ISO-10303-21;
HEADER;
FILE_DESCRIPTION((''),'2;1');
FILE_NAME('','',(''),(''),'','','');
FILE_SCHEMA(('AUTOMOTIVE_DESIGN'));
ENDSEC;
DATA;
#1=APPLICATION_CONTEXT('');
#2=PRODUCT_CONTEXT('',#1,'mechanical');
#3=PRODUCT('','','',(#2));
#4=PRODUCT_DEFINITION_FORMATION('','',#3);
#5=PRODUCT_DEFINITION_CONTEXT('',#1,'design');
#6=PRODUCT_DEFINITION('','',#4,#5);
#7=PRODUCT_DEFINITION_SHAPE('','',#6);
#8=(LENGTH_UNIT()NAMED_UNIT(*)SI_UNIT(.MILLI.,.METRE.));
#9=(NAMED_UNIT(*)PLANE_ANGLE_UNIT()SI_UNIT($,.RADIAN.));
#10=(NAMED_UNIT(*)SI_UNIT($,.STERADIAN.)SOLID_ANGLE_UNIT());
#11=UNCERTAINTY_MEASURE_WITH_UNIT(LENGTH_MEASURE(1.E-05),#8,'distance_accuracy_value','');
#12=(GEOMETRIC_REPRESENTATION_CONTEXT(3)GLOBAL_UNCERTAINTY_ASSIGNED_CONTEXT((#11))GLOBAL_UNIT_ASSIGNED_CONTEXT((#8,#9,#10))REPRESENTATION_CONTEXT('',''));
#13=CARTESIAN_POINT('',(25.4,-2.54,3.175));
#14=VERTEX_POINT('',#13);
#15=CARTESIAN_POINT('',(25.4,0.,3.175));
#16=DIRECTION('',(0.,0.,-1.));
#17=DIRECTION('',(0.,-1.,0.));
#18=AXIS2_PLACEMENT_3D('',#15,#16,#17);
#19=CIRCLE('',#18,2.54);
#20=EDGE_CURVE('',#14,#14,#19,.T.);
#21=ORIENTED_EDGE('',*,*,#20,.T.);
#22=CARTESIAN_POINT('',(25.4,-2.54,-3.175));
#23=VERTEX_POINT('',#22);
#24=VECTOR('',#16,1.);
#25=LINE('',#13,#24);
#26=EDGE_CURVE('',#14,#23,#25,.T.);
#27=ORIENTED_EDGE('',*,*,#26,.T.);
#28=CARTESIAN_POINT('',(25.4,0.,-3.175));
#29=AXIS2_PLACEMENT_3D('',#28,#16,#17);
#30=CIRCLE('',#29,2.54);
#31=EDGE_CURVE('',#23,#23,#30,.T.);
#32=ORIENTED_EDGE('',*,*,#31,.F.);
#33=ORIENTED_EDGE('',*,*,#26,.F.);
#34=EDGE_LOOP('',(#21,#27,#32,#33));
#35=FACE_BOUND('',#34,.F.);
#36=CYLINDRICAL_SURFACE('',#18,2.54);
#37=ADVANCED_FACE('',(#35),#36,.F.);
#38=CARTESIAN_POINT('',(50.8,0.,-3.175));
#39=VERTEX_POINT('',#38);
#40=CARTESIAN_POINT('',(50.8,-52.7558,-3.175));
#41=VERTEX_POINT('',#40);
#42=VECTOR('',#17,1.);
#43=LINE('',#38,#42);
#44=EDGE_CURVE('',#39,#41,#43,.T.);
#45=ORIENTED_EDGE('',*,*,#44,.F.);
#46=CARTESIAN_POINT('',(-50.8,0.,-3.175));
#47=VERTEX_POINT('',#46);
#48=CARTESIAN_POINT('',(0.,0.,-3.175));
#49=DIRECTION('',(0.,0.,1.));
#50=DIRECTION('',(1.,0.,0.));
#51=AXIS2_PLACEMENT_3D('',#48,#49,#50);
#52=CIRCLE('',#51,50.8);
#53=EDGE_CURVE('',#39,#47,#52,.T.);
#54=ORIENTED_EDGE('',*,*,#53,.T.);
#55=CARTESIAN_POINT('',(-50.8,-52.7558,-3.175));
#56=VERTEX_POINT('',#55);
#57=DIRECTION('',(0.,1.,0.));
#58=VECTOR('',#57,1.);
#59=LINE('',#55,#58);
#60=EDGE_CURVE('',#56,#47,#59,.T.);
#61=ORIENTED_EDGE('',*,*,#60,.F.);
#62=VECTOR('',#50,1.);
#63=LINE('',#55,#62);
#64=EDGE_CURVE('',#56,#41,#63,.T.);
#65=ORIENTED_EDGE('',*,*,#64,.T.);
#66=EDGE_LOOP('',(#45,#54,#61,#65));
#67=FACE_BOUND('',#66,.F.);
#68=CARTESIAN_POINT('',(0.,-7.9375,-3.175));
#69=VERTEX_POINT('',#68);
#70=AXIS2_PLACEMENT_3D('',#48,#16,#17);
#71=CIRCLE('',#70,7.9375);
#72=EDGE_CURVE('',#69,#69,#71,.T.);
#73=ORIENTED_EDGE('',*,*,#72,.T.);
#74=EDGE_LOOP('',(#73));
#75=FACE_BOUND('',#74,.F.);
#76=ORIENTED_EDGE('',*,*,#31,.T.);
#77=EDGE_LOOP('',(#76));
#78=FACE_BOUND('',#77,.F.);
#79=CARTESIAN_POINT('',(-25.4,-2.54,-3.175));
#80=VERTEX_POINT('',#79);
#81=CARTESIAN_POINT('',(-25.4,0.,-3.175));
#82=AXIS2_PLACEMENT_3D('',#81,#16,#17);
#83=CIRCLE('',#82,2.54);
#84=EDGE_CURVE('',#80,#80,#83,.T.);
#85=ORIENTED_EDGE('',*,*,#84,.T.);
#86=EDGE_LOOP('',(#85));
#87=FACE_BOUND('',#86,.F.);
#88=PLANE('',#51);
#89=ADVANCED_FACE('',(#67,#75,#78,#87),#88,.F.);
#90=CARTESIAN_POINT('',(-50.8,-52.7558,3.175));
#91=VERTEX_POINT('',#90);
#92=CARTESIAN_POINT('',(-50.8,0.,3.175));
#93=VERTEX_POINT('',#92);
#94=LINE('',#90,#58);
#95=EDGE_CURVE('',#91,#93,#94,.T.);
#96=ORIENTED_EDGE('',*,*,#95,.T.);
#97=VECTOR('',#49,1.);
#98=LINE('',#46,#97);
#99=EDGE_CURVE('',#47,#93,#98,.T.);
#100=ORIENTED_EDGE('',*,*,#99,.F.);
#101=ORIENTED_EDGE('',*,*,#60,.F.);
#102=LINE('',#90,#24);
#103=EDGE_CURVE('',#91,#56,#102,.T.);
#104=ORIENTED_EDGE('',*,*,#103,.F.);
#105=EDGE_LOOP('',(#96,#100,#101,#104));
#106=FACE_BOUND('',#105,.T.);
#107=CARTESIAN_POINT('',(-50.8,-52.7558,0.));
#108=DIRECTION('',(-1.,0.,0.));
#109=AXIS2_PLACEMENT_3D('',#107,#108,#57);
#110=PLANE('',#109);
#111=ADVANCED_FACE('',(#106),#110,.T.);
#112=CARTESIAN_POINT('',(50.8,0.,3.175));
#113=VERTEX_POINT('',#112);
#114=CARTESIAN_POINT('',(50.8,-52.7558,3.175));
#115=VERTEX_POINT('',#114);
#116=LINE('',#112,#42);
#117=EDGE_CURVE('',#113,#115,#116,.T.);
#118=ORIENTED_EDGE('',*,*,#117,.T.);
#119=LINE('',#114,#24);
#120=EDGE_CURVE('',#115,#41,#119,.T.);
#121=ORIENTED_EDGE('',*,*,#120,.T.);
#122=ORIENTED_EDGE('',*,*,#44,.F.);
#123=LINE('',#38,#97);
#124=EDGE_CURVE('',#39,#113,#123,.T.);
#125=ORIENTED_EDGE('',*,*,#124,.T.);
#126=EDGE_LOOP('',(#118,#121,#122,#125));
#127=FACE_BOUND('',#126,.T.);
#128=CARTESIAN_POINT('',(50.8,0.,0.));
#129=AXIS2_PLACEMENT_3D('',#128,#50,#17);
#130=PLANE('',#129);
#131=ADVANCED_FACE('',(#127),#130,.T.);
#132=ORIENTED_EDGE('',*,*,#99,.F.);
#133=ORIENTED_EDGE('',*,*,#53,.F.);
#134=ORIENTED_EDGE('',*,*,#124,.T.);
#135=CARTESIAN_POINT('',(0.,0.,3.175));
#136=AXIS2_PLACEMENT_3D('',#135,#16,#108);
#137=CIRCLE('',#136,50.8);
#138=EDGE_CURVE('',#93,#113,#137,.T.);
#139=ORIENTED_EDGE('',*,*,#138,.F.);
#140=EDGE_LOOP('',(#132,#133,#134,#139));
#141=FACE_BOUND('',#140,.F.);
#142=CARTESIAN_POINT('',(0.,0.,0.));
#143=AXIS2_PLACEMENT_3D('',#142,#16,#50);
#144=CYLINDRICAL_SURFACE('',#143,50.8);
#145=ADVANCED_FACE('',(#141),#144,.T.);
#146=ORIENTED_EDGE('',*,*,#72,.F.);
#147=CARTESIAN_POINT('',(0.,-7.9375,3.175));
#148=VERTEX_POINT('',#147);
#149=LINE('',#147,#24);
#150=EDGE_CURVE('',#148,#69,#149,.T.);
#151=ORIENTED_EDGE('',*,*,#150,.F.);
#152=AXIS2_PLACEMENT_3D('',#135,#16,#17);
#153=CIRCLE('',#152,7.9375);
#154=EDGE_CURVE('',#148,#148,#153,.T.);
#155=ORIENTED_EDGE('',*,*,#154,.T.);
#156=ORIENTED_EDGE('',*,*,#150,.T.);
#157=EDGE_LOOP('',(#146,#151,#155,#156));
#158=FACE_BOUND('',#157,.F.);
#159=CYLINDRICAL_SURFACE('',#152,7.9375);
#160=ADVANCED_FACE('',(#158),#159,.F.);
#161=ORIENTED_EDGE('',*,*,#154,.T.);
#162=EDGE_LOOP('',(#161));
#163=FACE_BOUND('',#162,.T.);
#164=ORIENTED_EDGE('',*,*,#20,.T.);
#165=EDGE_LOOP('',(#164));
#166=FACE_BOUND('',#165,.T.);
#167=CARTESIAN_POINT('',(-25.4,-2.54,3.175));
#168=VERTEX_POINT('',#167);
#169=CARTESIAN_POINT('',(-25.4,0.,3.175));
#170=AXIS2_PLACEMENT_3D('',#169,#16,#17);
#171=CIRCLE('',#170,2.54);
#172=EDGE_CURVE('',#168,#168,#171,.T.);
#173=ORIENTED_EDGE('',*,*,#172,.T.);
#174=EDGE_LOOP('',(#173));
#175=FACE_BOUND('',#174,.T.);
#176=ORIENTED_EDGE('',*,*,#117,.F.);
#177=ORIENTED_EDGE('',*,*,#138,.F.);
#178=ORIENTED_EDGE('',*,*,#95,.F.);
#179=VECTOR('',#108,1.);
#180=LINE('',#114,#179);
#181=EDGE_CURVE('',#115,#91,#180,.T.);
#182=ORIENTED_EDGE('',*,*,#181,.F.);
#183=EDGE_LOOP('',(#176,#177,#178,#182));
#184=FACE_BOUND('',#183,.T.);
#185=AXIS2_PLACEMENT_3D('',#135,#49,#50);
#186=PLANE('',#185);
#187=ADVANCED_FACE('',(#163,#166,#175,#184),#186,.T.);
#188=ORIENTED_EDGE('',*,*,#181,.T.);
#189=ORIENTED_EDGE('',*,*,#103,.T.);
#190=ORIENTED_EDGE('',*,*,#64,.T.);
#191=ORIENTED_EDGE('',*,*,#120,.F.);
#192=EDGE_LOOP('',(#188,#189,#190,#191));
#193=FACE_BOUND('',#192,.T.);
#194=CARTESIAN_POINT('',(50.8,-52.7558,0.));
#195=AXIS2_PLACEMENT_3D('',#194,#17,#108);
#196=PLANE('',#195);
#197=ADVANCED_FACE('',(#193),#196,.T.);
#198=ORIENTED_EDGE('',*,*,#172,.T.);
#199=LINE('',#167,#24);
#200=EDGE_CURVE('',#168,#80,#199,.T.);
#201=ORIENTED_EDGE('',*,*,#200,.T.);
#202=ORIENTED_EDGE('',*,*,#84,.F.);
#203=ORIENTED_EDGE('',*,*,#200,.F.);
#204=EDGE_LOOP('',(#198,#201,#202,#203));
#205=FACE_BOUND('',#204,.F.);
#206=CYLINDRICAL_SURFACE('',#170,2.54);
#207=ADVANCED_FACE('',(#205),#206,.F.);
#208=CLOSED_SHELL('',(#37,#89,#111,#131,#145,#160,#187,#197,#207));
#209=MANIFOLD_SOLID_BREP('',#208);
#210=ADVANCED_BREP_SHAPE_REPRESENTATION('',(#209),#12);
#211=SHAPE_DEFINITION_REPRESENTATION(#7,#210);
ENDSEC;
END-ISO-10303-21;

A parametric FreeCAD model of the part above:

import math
import FreeCAD as App
import Part
import Sketcher
from FreeCAD import Vector
Q = App.Units.Quantity

doc = App.newDocument("Part")
body = doc.addObject("PartDesign::Body", "Body")

sketch1 = body.newObject("Sketcher::SketchObject", "Sketch")
sketch1.AttachmentSupport = (doc.getObject("XY_Plane"), [""])
sketch1.MapMode = "FlatFace"
sketch1.addGeometry(Part.LineSegment(Vector(51, -53, 0), Vector(51, 0, 0)), False)
sketch1.addGeometry(Part.ArcOfCircle(Part.Circle(Vector(0, 0, 0), Vector(0, 0, 1), 51), math.radians(0), math.radians(180)), False)
sketch1.addGeometry(Part.LineSegment(Vector(-51, 0, 0), Vector(-51, -53, 0)), False)
sketch1.addGeometry(Part.LineSegment(Vector(-51, -53, 0), Vector(51, -53, 0)), False)
sketch1.addConstraint(Sketcher.Constraint("Tangent", 0, 2, 1, 1))
sketch1.addConstraint(Sketcher.Constraint("Tangent", 1, 2, 2, 1))
sketch1.addConstraint(Sketcher.Constraint("Coincident", 2, 2, 3, 1))
sketch1.addConstraint(Sketcher.Constraint("Coincident", 3, 2, 0, 1))
sketch1.addConstraint(Sketcher.Constraint("Vertical", 0))
sketch1.addConstraint(Sketcher.Constraint("Vertical", 2))
sketch1.addConstraint(Sketcher.Constraint("Horizontal", 3))
sketch1.addConstraint(Sketcher.Constraint("Coincident", 1, 3, -1, 1))
sketch1.addConstraint(Sketcher.Constraint("Radius", 1, Q("2 in")))
sketch1.addConstraint(Sketcher.Constraint("DistanceY", 0, 1, 0, 2, Q("2.077 in")))
pad1 = body.newObject("PartDesign::Pad", "Pad")
pad1.Profile = sketch1
pad1.Length = Q("0.25 in")
pad1.Midplane = True

sketch2 = body.newObject("Sketcher::SketchObject", "Sketch001")
sketch2.AttachmentSupport = (doc.getObject("XY_Plane"), [""])
sketch2.MapMode = "FlatFace"
sketch2.AttachmentOffset = App.Placement(Vector(0, 0, 0.125 * 25.4), App.Rotation())
sketch2.addGeometry(Part.Circle(Vector(0, 0, 0), Vector(0, 0, 1), 8), False)
sketch2.addConstraint(Sketcher.Constraint("Coincident", 0, 3, -1, 1))
sketch2.addConstraint(Sketcher.Constraint("Diameter", 0, Q("0.625 in")))
doc.recompute()
hole = body.newObject("PartDesign::Hole", "Hole")
hole.Profile = sketch2
hole.ThreadType = "None"
hole.Diameter = Q("0.625 in")
hole.DepthType = "ThroughAll"

sketch3 = body.newObject("Sketcher::SketchObject", "Sketch002")
sketch3.AttachmentSupport = (doc.getObject("XY_Plane"), [""])
sketch3.MapMode = "FlatFace"
sketch3.AttachmentOffset = App.Placement(Vector(0, 0, 0.125 * 25.4), App.Rotation())
sketch3.addGeometry(Part.Circle(Vector(-25.4, 0, 0), Vector(0, 0, 1), 2.5), False)
sketch3.addGeometry(Part.Circle(Vector(25.4, 0, 0), Vector(0, 0, 1), 2.5), False)
sketch3.addConstraint(Sketcher.Constraint("Equal", 0, 1))
sketch3.addConstraint(Sketcher.Constraint("Symmetric", 0, 3, 1, 3, -1, 1))
sketch3.addConstraint(Sketcher.Constraint("PointOnObject", 0, 3, -1))
sketch3.addConstraint(Sketcher.Constraint("Diameter", 0, Q("0.2 in")))
sketch3.addConstraint(Sketcher.Constraint("DistanceX", 0, 3, -1, 1, Q("1 in")))
doc.recompute()
hole2 = body.newObject("PartDesign::Hole", "Hole001")
hole2.Profile = sketch3
hole2.ThreadType = "None"
hole2.Diameter = Q("0.2 in")
hole2.DepthType = "ThroughAll"

doc.recompute()
